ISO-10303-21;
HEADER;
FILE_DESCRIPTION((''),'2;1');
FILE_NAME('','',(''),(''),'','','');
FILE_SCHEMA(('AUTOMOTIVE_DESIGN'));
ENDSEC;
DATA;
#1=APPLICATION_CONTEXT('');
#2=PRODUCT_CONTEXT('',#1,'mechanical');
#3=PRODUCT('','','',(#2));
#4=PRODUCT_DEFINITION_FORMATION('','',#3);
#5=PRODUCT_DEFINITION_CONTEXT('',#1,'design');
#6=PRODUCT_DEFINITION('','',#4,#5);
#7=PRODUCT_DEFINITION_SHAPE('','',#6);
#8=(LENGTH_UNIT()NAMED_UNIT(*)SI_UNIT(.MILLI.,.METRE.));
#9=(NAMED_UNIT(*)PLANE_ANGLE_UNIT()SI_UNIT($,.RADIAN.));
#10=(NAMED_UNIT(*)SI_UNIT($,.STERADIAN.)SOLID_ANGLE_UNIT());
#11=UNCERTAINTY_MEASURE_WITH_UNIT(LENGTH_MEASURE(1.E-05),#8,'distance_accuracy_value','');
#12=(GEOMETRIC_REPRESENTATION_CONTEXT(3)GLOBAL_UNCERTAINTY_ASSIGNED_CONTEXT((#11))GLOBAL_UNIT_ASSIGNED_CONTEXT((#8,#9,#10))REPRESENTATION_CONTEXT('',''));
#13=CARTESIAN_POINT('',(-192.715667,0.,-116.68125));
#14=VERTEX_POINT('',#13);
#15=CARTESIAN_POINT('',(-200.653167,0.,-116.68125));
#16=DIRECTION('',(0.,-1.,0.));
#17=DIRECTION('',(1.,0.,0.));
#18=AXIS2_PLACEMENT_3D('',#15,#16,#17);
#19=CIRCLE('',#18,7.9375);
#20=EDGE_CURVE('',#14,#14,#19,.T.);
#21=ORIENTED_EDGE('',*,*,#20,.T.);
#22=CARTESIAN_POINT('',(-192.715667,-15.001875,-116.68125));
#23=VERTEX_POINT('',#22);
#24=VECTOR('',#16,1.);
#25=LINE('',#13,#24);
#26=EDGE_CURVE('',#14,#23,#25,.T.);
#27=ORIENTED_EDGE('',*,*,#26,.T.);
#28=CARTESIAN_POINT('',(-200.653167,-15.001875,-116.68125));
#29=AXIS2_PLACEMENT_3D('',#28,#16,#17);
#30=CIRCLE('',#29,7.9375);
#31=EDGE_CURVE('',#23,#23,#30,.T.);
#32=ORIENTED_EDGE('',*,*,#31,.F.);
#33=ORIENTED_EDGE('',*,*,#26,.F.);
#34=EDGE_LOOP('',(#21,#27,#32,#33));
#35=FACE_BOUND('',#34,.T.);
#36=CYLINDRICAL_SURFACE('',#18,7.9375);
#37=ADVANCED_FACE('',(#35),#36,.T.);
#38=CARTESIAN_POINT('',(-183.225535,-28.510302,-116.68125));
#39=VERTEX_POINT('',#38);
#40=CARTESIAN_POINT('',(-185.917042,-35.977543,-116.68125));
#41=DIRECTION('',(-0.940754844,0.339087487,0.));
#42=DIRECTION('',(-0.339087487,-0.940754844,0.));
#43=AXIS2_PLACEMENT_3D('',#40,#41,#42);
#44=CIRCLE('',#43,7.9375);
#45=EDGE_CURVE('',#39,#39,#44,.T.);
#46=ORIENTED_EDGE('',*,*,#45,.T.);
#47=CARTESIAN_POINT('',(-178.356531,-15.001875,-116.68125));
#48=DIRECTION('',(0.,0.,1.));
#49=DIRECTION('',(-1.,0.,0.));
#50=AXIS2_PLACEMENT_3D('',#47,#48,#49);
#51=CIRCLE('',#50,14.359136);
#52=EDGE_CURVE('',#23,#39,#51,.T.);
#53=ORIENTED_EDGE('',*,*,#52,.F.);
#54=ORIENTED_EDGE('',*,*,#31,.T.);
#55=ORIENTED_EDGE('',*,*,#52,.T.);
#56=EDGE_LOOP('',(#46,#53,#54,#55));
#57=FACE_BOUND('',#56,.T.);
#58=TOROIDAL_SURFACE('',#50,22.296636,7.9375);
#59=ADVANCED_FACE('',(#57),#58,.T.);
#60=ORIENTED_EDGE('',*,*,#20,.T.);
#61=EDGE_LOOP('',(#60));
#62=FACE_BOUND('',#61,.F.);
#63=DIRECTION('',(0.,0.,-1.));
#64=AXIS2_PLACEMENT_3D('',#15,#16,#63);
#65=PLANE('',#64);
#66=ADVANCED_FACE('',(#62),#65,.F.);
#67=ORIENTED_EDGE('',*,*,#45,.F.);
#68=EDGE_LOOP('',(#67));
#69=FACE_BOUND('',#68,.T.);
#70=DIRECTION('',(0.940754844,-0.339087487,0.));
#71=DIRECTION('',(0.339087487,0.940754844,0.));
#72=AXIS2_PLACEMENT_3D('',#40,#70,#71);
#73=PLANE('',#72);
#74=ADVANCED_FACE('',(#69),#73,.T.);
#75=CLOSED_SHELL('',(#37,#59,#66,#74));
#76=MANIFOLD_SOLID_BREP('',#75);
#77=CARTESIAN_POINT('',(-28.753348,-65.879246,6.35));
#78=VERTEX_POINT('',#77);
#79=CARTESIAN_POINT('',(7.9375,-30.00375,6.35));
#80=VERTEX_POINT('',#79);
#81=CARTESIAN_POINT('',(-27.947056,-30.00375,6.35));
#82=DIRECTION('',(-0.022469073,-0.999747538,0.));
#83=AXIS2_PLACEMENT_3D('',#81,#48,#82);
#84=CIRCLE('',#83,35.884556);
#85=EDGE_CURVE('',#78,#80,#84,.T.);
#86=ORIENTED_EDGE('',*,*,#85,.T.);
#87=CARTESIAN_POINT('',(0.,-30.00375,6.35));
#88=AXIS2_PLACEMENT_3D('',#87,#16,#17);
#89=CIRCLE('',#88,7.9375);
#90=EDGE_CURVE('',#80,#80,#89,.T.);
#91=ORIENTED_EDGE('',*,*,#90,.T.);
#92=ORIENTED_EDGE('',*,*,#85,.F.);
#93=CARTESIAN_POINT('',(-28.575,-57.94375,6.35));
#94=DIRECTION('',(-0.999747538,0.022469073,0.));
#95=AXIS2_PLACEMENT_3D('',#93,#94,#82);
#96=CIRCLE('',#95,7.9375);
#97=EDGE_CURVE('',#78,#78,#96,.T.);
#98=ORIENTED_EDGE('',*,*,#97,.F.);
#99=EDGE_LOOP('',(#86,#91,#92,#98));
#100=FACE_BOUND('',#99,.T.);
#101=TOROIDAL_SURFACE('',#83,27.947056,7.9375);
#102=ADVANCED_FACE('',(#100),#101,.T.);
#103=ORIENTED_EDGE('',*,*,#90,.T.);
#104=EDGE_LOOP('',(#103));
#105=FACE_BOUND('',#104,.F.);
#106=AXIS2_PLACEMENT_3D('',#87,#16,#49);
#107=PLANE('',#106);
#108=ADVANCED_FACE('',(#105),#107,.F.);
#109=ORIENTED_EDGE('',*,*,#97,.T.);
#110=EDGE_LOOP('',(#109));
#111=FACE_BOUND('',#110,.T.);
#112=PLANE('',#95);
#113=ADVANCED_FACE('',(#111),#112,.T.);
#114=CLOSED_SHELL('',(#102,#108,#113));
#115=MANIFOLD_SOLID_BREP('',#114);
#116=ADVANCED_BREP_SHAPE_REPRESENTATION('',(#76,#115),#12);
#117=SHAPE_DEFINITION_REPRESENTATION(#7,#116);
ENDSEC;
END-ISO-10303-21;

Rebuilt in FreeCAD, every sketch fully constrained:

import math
import FreeCAD as App
import Part
import Sketcher
from FreeCAD import Vector
Q = App.Units.Quantity

doc = App.newDocument("Part")
params = doc.addObject("Spreadsheet::Sheet", "Params")
for row, (alias, value) in enumerate([
    ("sketch1_diameter", "0.625 in"),
    ("sketch3_diameter", "0.625 in"),
    ("sketch4_height", "1.1 in"),
    ("sketch4_height2", "1.1 in"),
], start=1):
    params.set(f"A{row}", alias)
    params.set(f"B{row}", "=" + value)
    params.setAlias(f"B{row}", alias)

body = doc.addObject("PartDesign::Body", "Body")

# Sketch on XZ plane
sketch1 = body.newObject("Sketcher::SketchObject", "Sketch")
sketch1.AttachmentSupport = (doc.getObject("XZ_Plane"), [""])
sketch1.MapMode = "FlatFace"
sketch1.addGeometry(Part.Circle(Vector(-201, -117, 0), Vector(0, 0, 1), 8), False)
sketch1.addConstraint([
    Sketcher.Constraint("Diameter", 0, Q("0.625 in")),
    Sketcher.Constraint("DistanceY", 0, 3, -1, 1, Q("4.59375 in")),
    Sketcher.Constraint("DistanceX", 0, 3, -1, 1, 200.653167),
])
sketch1.setExpression("Constraints[0]", "Params.sketch1_diameter")

# Sketch on XY plane
sketch2 = body.newObject("Sketcher::SketchObject", "Sketch001")
sketch2.AttachmentSupport = (doc.getObject("XY_Plane"), [""])
sketch2.MapMode = "FlatFace"
sketch2.AttachmentOffset = App.Placement(Vector(0, 0, -4.59375 * 25.4), App.Rotation())
sketch2.addGeometry([
    Part.LineSegment(Vector(-201, 0, 0), Vector(-201, -15, 0)),
    Part.ArcOfCircle(Part.Circle(Vector(-178, -15, 0), Vector(0, 0, 1), 22), math.radians(180), math.radians(250)),
], False)
sketch2.addConstraint([
    Sketcher.Constraint("Tangent", 0, 2, 1, 1),
    Sketcher.Constraint("Vertical", 0),
    Sketcher.Constraint("PointOnObject", 0, 1, -1),
    Sketcher.Constraint("Radius", 1, 22.296636),
    Sketcher.Constraint("DistanceY", 0, 2, 0, 1, 15.001875),
    Sketcher.Constraint("DistanceX", 1, 3, -1, 1, 178.356531),
    Sketcher.Constraint("DistanceX", 1, 2, -1, 1, 185.917042),
])
doc.recompute()

additivepipe = body.newObject("PartDesign::AdditivePipe", "AdditivePipe")
additivepipe.Profile = sketch1
additivepipe.Spine = (sketch2, ["Edge1", "Edge2"])
body2 = doc.addObject("PartDesign::Body", "Body001")

# Sketch on XZ plane
sketch3 = body2.newObject("Sketcher::SketchObject", "Sketch002")
sketch3.AttachmentSupport = (doc.getObject("XZ_Plane001"), [""])
sketch3.MapMode = "FlatFace"
sketch3.AttachmentOffset = App.Placement(Vector(0, 0, 30.00375), App.Rotation())
sketch3.addGeometry(Part.Circle(Vector(0, 6, 0), Vector(0, 0, 1), 8), False)
sketch3.addConstraint([
    Sketcher.Constraint("PointOnObject", 0, 3, -2),
    Sketcher.Constraint("Diameter", 0, Q("0.625 in")),
    Sketcher.Constraint("DistanceY", -1, 1, 0, 3, Q("0.25 in")),
])
sketch3.setExpression("Constraints[1]", "Params.sketch3_diameter")

# Sketch on XY plane
sketch4 = body2.newObject("Sketcher::SketchObject", "Sketch003")
sketch4.AttachmentSupport = (doc.getObject("XY_Plane001"), [""])
sketch4.MapMode = "FlatFace"
sketch4.AttachmentOffset = App.Placement(Vector(0, 0, 0.25 * 25.4), App.Rotation())
sketch4.addGeometry(Part.ArcOfCircle(Part.Circle(Vector(-28, -30, 0), Vector(0, 0, 1), 28), math.radians(-91), math.radians(0)), False)
sketch4.addConstraint([
    Sketcher.Constraint("PointOnObject", 0, 2, -2),
    Sketcher.Constraint("DistanceY", 0, 1, 0, 3, Q("1.1 in")),
    Sketcher.Constraint("DistanceY", 0, 1, 0, 2, Q("1.1 in")),
    Sketcher.Constraint("DistanceX", 0, 1, -1, 1, Q("1.125 in")),
    Sketcher.Constraint("DistanceY", 0, 1, -1, 1, Q("2.28125 in")),
])
sketch4.setExpression("Constraints[1]", "Params.sketch4_height")
sketch4.setExpression("Constraints[2]", "Params.sketch4_height2")
doc.recompute()

additivepipe2 = body2.newObject("PartDesign::AdditivePipe", "AdditivePipe001")
additivepipe2.Profile = sketch3
additivepipe2.Spine = (sketch4, ["Edge1"])

doc.recompute()
